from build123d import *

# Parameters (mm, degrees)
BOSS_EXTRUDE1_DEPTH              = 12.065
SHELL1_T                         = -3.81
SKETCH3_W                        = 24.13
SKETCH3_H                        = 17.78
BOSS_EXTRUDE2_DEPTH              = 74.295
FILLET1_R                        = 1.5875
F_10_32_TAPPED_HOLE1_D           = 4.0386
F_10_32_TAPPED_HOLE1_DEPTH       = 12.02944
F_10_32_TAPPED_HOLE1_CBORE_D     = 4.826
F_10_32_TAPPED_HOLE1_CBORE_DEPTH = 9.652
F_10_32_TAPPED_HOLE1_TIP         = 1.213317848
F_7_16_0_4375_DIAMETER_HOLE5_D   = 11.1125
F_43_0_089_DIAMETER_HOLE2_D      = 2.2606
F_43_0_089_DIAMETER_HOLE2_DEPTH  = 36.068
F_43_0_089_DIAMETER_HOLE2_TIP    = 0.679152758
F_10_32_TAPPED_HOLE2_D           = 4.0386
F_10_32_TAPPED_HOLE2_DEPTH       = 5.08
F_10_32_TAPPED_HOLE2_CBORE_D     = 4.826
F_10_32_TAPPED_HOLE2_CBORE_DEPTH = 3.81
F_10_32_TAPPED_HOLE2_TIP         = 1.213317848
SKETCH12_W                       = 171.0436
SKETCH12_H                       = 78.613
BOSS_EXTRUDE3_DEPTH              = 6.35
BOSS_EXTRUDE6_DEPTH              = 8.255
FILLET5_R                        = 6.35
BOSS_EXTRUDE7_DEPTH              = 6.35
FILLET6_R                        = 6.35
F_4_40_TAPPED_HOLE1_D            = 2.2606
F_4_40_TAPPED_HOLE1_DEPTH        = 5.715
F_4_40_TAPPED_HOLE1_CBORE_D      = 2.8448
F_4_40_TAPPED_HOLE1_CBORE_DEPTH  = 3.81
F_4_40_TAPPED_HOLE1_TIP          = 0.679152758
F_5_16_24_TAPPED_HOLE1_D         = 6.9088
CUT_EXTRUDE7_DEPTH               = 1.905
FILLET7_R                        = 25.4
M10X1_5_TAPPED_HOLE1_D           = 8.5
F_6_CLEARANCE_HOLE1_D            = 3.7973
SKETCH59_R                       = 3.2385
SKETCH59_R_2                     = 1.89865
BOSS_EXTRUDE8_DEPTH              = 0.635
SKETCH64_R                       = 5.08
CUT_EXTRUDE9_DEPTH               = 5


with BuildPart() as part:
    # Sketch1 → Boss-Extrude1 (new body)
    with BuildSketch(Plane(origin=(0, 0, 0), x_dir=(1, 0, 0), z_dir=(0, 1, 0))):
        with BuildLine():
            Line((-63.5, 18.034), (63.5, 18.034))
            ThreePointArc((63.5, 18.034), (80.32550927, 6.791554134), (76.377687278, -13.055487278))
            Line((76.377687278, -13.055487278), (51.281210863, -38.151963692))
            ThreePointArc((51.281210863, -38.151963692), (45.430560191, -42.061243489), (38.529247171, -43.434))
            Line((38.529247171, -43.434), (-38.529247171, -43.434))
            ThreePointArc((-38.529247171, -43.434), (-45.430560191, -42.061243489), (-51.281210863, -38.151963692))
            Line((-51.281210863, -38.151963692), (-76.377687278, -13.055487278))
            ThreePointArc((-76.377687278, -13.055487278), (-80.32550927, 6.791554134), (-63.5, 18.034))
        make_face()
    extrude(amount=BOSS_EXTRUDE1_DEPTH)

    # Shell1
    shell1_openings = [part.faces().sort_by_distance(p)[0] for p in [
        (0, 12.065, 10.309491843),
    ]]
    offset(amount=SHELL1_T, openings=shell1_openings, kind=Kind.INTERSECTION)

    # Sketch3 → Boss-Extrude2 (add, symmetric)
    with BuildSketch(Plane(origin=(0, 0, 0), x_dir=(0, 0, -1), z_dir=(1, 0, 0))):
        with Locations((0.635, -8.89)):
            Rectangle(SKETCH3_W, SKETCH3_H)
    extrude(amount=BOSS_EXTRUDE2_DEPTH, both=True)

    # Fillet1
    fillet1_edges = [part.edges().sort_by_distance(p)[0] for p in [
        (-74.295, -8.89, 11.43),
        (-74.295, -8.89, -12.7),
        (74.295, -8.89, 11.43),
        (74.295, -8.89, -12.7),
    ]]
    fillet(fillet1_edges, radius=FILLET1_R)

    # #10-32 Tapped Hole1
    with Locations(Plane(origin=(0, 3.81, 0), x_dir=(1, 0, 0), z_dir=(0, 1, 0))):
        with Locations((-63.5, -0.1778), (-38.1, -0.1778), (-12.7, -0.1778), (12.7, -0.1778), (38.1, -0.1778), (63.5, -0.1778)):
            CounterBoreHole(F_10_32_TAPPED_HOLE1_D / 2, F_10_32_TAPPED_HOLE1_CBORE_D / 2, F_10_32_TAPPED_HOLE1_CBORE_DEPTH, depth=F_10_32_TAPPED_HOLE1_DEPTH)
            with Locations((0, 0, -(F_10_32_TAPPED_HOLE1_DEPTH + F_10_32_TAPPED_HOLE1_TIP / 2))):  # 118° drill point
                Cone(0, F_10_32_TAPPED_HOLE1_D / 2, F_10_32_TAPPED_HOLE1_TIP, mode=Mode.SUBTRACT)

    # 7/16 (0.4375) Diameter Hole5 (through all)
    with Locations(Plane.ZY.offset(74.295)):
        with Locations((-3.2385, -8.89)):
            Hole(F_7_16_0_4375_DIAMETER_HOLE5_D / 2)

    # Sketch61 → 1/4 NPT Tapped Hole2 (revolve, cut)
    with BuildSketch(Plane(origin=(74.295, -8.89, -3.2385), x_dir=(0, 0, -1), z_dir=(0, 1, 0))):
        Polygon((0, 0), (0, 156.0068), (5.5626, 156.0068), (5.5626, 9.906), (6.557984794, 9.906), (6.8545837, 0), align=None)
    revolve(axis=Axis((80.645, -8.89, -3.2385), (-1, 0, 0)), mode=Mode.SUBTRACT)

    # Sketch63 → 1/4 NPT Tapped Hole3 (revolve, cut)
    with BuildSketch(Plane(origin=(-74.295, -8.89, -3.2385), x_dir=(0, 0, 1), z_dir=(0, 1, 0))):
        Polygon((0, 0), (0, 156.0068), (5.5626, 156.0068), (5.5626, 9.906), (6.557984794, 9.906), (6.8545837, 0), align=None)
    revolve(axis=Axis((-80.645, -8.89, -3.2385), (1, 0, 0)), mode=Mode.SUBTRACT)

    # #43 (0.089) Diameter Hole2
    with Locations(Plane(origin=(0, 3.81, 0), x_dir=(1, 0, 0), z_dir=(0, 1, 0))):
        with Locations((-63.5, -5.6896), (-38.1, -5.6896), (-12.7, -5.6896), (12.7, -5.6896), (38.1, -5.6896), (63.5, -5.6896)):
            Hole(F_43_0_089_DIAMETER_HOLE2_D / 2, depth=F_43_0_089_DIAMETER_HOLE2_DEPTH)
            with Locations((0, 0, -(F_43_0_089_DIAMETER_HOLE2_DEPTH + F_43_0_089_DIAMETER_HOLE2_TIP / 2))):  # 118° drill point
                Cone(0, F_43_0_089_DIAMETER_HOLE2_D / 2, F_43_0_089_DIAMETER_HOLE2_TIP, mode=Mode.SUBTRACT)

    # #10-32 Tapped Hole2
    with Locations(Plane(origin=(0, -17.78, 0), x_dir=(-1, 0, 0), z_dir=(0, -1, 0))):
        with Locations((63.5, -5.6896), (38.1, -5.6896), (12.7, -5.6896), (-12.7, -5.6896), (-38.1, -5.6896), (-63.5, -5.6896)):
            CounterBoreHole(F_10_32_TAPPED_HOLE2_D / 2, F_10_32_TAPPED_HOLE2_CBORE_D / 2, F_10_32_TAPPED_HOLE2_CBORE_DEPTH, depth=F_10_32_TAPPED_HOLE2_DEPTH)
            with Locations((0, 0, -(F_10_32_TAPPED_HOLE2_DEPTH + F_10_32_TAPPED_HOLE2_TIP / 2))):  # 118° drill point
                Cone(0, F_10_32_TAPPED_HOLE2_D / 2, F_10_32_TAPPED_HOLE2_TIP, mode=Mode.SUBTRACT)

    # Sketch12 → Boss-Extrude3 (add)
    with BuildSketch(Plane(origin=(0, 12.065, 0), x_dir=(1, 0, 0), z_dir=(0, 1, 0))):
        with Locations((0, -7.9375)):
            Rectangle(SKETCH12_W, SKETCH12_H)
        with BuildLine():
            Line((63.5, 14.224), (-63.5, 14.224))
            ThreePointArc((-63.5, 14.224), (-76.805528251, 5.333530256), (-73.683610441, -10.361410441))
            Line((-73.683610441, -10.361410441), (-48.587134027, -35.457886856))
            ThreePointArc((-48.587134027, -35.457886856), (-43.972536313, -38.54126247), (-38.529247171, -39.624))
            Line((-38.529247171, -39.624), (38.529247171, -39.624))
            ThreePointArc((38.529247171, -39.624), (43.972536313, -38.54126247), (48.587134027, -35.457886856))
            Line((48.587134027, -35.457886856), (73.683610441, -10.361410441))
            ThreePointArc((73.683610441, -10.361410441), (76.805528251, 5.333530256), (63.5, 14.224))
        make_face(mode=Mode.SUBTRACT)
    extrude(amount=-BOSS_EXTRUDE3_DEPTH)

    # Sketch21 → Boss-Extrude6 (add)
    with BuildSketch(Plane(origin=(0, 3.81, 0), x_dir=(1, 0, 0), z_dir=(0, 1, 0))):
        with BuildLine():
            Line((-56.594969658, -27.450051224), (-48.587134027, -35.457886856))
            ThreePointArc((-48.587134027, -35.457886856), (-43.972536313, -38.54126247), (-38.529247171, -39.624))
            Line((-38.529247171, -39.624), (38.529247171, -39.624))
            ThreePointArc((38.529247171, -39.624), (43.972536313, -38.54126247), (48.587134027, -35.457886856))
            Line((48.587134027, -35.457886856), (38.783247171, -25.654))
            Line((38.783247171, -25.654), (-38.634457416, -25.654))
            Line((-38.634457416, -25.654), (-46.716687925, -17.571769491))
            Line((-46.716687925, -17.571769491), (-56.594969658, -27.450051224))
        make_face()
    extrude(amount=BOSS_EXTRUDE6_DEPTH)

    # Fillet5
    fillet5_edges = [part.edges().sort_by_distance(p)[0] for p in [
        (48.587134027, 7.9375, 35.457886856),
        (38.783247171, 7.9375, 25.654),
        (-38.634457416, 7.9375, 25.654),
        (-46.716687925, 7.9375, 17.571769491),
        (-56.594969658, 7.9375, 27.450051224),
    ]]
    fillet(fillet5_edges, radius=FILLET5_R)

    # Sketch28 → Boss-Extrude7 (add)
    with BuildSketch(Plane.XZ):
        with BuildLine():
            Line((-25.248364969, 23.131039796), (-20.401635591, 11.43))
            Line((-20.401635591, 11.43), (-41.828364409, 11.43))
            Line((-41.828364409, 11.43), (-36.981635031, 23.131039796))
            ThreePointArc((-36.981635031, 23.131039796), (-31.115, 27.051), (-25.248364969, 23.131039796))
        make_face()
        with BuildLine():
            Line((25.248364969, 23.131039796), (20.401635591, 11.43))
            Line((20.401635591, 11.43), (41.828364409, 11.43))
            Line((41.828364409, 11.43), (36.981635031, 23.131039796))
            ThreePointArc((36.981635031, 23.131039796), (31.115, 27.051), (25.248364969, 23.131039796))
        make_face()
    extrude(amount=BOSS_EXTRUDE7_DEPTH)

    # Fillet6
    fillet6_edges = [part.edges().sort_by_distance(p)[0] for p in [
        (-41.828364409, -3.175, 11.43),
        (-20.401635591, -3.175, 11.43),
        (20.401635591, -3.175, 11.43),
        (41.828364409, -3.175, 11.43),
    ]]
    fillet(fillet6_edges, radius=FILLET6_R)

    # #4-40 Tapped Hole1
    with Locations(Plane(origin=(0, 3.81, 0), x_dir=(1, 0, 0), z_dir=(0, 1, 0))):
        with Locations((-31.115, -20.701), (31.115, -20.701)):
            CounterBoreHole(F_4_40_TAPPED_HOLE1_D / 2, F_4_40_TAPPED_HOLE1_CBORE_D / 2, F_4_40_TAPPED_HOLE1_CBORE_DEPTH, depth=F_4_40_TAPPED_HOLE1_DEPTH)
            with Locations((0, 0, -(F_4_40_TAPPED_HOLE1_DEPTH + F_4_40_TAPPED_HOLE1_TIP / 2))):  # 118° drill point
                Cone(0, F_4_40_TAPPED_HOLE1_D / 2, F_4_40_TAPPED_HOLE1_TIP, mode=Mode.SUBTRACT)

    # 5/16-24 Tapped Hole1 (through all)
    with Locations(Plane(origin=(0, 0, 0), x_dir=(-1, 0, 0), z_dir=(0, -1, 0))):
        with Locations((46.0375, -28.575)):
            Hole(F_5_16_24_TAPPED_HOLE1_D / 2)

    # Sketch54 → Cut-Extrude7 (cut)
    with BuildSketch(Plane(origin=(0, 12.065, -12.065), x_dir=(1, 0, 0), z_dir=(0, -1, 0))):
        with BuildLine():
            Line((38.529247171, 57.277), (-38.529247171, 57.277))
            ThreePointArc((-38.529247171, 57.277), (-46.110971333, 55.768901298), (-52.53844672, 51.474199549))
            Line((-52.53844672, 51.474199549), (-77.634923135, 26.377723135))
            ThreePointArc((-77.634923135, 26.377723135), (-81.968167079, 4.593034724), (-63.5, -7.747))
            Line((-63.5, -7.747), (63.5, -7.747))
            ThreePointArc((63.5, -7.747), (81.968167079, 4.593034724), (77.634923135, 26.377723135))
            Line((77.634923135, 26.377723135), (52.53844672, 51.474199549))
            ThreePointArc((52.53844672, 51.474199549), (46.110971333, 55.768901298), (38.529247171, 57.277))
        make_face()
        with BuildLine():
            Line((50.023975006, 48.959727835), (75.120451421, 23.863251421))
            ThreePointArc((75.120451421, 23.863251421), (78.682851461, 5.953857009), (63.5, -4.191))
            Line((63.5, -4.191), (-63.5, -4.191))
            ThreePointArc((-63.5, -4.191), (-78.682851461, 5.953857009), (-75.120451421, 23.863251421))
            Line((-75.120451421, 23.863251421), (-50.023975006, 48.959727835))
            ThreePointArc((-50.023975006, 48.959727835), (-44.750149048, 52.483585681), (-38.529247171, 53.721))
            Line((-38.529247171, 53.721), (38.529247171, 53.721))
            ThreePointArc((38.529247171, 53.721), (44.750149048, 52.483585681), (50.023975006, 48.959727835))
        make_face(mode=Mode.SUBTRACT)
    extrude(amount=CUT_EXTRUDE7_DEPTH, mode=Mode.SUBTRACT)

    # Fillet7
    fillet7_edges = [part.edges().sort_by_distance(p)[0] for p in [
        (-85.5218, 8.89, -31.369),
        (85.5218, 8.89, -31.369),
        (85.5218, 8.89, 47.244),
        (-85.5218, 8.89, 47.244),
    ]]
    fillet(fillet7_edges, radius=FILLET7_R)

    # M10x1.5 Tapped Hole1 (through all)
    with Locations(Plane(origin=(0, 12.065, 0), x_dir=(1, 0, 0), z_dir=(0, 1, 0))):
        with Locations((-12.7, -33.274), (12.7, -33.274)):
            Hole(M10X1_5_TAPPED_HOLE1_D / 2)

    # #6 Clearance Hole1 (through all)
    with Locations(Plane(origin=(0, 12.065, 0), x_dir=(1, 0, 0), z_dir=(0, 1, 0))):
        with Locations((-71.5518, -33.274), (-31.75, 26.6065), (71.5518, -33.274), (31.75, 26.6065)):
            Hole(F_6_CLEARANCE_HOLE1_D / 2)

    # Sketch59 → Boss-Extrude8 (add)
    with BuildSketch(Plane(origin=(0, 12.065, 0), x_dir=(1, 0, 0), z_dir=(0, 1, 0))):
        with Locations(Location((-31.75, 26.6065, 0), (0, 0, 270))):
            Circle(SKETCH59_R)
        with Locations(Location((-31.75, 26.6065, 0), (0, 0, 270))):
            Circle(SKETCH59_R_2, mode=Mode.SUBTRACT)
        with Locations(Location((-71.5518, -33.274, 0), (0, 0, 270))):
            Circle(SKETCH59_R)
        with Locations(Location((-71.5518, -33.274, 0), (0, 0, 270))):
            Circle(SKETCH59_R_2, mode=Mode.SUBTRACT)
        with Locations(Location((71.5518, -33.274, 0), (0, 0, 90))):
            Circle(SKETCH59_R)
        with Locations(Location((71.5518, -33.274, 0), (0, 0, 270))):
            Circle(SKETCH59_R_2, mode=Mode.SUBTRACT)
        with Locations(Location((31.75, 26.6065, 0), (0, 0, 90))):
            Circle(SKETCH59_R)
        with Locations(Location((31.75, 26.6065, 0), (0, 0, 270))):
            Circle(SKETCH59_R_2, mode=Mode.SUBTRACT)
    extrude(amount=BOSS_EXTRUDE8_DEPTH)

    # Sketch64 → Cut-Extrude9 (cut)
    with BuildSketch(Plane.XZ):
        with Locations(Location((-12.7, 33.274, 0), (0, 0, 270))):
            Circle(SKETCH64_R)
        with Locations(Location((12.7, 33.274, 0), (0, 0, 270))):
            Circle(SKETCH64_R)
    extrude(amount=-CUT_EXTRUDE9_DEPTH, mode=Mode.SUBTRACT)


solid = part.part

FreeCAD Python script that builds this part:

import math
import FreeCAD as App
import Part
import Sketcher
Q = App.Units.Quantity


def edges_at(feature, points):
    """Names of the edges that pass closest to the given points."""
    edges = feature.Shape.Edges
    near = lambda p: min(range(len(edges)), key=lambda i: edges[i].distToShape(Part.Vertex(*p))[0])
    return sorted({f"Edge{near(p) + 1}" for p in points})


def faces_at(feature, points):
    """Names of the faces that lie closest to the given points."""
    faces = feature.Shape.Faces
    near = lambda p: min(range(len(faces)), key=lambda i: faces[i].distToShape(Part.Vertex(*p))[0])
    return sorted({f"Face{near(p) + 1}" for p in points})

doc = App.newDocument("Part")
body = doc.addObject("PartDesign::Body", "Body")

# Sketch on XZ plane
sketch1 = body.newObject("Sketcher::SketchObject", "Sketch")
sketch1.AttachmentSupport = (doc.getObject("XZ_Plane"), [""])
sketch1.MapMode = "FlatFace"
sketch1.addGeometry(Part.LineSegment(App.Vector(64, -18, 0), App.Vector(-64, -18, 0)), False)
sketch1.addGeometry(Part.ArcOfCircle(Part.Circle(App.Vector(-64, 0, 0), App.Vector(0, 0, 1), 18), math.radians(135), math.radians(270)), False)
sketch1.addGeometry(Part.LineSegment(App.Vector(-76, 13, 0), App.Vector(-51, 38, 0)), False)
sketch1.addGeometry(Part.ArcOfCircle(Part.Circle(App.Vector(-39, 25, 0), App.Vector(0, 0, 1), 18), math.radians(90), math.radians(135)), False)
sketch1.addGeometry(Part.LineSegment(App.Vector(-39, 43, 0), App.Vector(39, 43, 0)), False)
sketch1.addGeometry(Part.ArcOfCircle(Part.Circle(App.Vector(39, 25, 0), App.Vector(0, 0, 1), 18), math.radians(45), math.radians(90)), False)
sketch1.addGeometry(Part.LineSegment(App.Vector(51, 38, 0), App.Vector(76, 13, 0)), False)
sketch1.addGeometry(Part.ArcOfCircle(Part.Circle(App.Vector(64, 0, 0), App.Vector(0, 0, 1), 18), math.radians(-90), math.radians(45)), False)
sketch1.addConstraint(Sketcher.Constraint("Tangent", 0, 2, 1, 2))
sketch1.addConstraint(Sketcher.Constraint("Tangent", 1, 1, 2, 1))
sketch1.addConstraint(Sketcher.Constraint("Tangent", 2, 2, 3, 2))
sketch1.addConstraint(Sketcher.Constraint("Tangent", 3, 1, 4, 1))
sketch1.addConstraint(Sketcher.Constraint("Tangent", 4, 2, 5, 2))
sketch1.addConstraint(Sketcher.Constraint("Tangent", 5, 1, 6, 1))
sketch1.addConstraint(Sketcher.Constraint("Tangent", 6, 2, 7, 2))
sketch1.addConstraint(Sketcher.Constraint("Tangent", 7, 1, 0, 1))
sketch1.addConstraint(Sketcher.Constraint("Horizontal", 0))
sketch1.addConstraint(Sketcher.Constraint("Horizontal", 4))
sketch1.addConstraint(Sketcher.Constraint("Equal", 3, 5))
sketch1.addConstraint(Sketcher.Constraint("Equal", 1, 7))
sketch1.addConstraint(Sketcher.Constraint("Symmetric", 2, 2, 5, 1, -2))
sketch1.addConstraint(Sketcher.Constraint("Perpendicular", 2, 6))
sketch1.addConstraint(Sketcher.Constraint("DistanceX", 0, 2, 0, 1, Q("5 in")))
sketch1.addConstraint(Sketcher.Constraint("Radius", 3, Q("0.71 in")))
sketch1.addConstraint(Sketcher.Constraint("DistanceY", -1, 1, 3, 3, Q("1 in")))
sketch1.addConstraint(Sketcher.Constraint("Radius", 1, Q("0.717 in")))
sketch1.addConstraint(Sketcher.Constraint("DistanceY", 0, 2, -1, 1, Q("0.71 in")))
pad1 = body.newObject("PartDesign::Pad", "Pad")
pad1.Profile = sketch1
pad1.Length = Q("0.475 in")
pad1.Reversed = True
doc.recompute()

thickness = body.newObject("PartDesign::Thickness", "Thickness")
thickness.Base = (pad1, faces_at(pad1, [(0, 12.065, 12.7)]))
thickness.Value = Q("0.15 in")
thickness.Reversed = True
thickness.Join = "Intersection"

# Sketch on YZ plane
sketch2 = body.newObject("Sketcher::SketchObject", "Sketch001")
sketch2.AttachmentSupport = (doc.getObject("YZ_Plane"), [""])
sketch2.MapMode = "FlatFace"
sketch2.addGeometry(Part.LineSegment(App.Vector(0, 11, 0), App.Vector(-18, 11, 0)), False)
sketch2.addGeometry(Part.LineSegment(App.Vector(-18, 11, 0), App.Vector(-18, -13, 0)), False)
sketch2.addGeometry(Part.LineSegment(App.Vector(-18, -13, 0), App.Vector(0, -13, 0)), False)
sketch2.addGeometry(Part.LineSegment(App.Vector(0, -13, 0), App.Vector(0, 11, 0)), False)
sketch2.addConstraint(Sketcher.Constraint("Coincident", 0, 2, 1, 1))
sketch2.addConstraint(Sketcher.Constraint("Coincident", 1, 2, 2, 1))
sketch2.addConstraint(Sketcher.Constraint("Coincident", 2, 2, 3, 1))
sketch2.addConstraint(Sketcher.Constraint("Coincident", 3, 2, 0, 1))
sketch2.addConstraint(Sketcher.Constraint("Horizontal", 0))
sketch2.addConstraint(Sketcher.Constraint("Vertical", 1))
sketch2.addConstraint(Sketcher.Constraint("Horizontal", 2))
sketch2.addConstraint(Sketcher.Constraint("Vertical", 3))
sketch2.addConstraint(Sketcher.Constraint("PointOnObject", 2, 2, -2))
sketch2.addConstraint(Sketcher.Constraint("DistanceX", 0, 2, 0, 1, Q("0.7 in")))
sketch2.addConstraint(Sketcher.Constraint("DistanceY", 1, 2, 1, 1, Q("0.95 in")))
sketch2.addConstraint(Sketcher.Constraint("DistanceY", 1, 2, -1, 1, Q("0.5 in")))
pad2 = body.newObject("PartDesign::Pad", "Pad001")
pad2.Profile = sketch2
pad2.Length = Q("5.85 in")
pad2.Midplane = True
doc.recompute()

fillet = body.newObject("PartDesign::Fillet", "Fillet")
fillet.Base = (pad2, edges_at(pad2, [
    (-74.295, -8.89, 11.43),
    (-74.295, -8.89, -12.7),
    (74.295, -8.89, 11.43),
    (74.295, -8.89, -12.7),
]))
fillet.Radius = Q("0.0625 in")

# Sketch on XZ plane
sketch3 = body.newObject("Sketcher::SketchObject", "Sketch002")
sketch3.AttachmentSupport = (doc.getObject("XZ_Plane"), [""])
sketch3.MapMode = "FlatFace"
sketch3.AttachmentOffset = App.Placement(App.Vector(0, 0, -0.15 * 25.4), App.Rotation())
sketch3.addGeometry(Part.Circle(App.Vector(-63.5, 0.2, 0), App.Vector(0, 0, 1), 2), False)
sketch3.addGeometry(Part.Circle(App.Vector(-38.1, 0.2, 0), App.Vector(0, 0, 1), 2), False)
sketch3.addGeometry(Part.Circle(App.Vector(-12.7, 0.2, 0), App.Vector(0, 0, 1), 2), False)
sketch3.addGeometry(Part.Circle(App.Vector(12.7, 0.2, 0), App.Vector(0, 0, 1), 2), False)
sketch3.addGeometry(Part.Circle(App.Vector(38.1, 0.2, 0), App.Vector(0, 0, 1), 2), False)
sketch3.addGeometry(Part.Circle(App.Vector(63.5, 0.2, 0), App.Vector(0, 0, 1), 2), False)
sketch3.addConstraint(Sketcher.Constraint("Equal", 0, 1))
sketch3.addConstraint(Sketcher.Constraint("Equal", 1, 2))
sketch3.addConstraint(Sketcher.Constraint("Equal", 2, 3))
sketch3.addConstraint(Sketcher.Constraint("Equal", 3, 4))
sketch3.addConstraint(Sketcher.Constraint("Equal", 4, 5))
sketch3.addConstraint(Sketcher.Constraint("Symmetric", 2, 3, 3, 3, -2))
sketch3.addConstraint(Sketcher.Constraint("Symmetric", 1, 3, 4, 3, -2))
sketch3.addConstraint(Sketcher.Constraint("Symmetric", 0, 3, 5, 3, -2))
sketch3.addConstraint(Sketcher.Constraint("Horizontal", 0, 3, 1, 3))
sketch3.addConstraint(Sketcher.Constraint("Horizontal", 1, 3, 2, 3))
sketch3.addConstraint(Sketcher.Constraint("Diameter", 0, Q("0.159 in")))
sketch3.addConstraint(Sketcher.Constraint("DistanceX", 0, 3, 1, 3, Q("1 in")))
sketch3.addConstraint(Sketcher.Constraint("DistanceX", 1, 3, 2, 3, Q("1 in")))
sketch3.addConstraint(Sketcher.Constraint("DistanceX", 2, 3, 3, 3, Q("1 in")))
sketch3.addConstraint(Sketcher.Constraint("DistanceY", -1, 1, 0, 3, Q("0.007 in")))
doc.recompute()
hole = body.newObject("PartDesign::Hole", "Hole")
hole.Profile = sketch3
hole.ThreadType = "None"
hole.Diameter = Q("0.159 in")
hole.DepthType = "Dimension"
hole.Depth = Q("0.4736 in")
hole.DrillPoint = "Angled"
hole.DrillPointAngle = 118
hole.HoleCutType = "Counterbore"
hole.HoleCutDiameter = Q("0.19 in")
hole.HoleCutDepth = Q("0.38 in")
hole.Reversed = True

# Sketch on YZ plane
sketch4 = body.newObject("Sketcher::SketchObject", "Sketch003")
sketch4.AttachmentSupport = (doc.getObject("YZ_Plane"), [""])
sketch4.MapMode = "FlatFace"
sketch4.AttachmentOffset = App.Placement(App.Vector(0, 0, -2.925 * 25.4), App.Rotation())
sketch4.addGeometry(Part.Circle(App.Vector(-9, -3, 0), App.Vector(0, 0, 1), 6), False)
sketch4.addConstraint(Sketcher.Constraint("Diameter", 0, Q("0.4375 in")))
sketch4.addConstraint(Sketcher.Constraint("DistanceX", 0, 3, -1, 1, Q("0.35 in")))
sketch4.addConstraint(Sketcher.Constraint("DistanceY", 0, 3, -1, 1, Q("0.1275 in")))
doc.recompute()
hole2 = body.newObject("PartDesign::Hole", "Hole001")
hole2.Profile = sketch4
hole2.ThreadType = "None"
hole2.Diameter = Q("0.4375 in")
hole2.DepthType = "ThroughAll"
hole2.Reversed = True

# Sketch on XZ plane
sketch5 = body.newObject("Sketcher::SketchObject", "Sketch004")
sketch5.AttachmentSupport = (doc.getObject("XZ_Plane"), [""])
sketch5.MapMode = "FlatFace"
sketch5.AttachmentOffset = App.Placement(App.Vector(0, 0, 0.35 * 25.4), App.Rotation())
sketch5.addGeometry(Part.LineSegment(App.Vector(-81.7, -3.2, 0), App.Vector(74.3, -3.2, 0)), False)
sketch5.addGeometry(Part.LineSegment(App.Vector(74.3, -3.2, 0), App.Vector(74.3, -10.1, 0)), False)
sketch5.addGeometry(Part.LineSegment(App.Vector(74.3, -10.1, 0), App.Vector(64.4, -9.8, 0)), False)
sketch5.addGeometry(Part.LineSegment(App.Vector(64.4, -9.8, 0), App.Vector(64.4, -8.8, 0)), False)
sketch5.addGeometry(Part.LineSegment(App.Vector(64.4, -8.8, 0), App.Vector(-81.7, -8.8, 0)), False)
sketch5.addGeometry(Part.LineSegment(App.Vector(-81.7, -8.8, 0), App.Vector(-81.7, -3.2, 0)), False)
sketch5.addGeometry(Part.LineSegment(App.Vector(74.3, -3.2, 0), App.Vector(-81.7, -3.2, 0)), True)  # axis
sketch5.addConstraint(Sketcher.Constraint("Coincident", 0, 2, 1, 1))
sketch5.addConstraint(Sketcher.Constraint("Coincident", 1, 2, 2, 1))
sketch5.addConstraint(Sketcher.Constraint("Coincident", 2, 2, 3, 1))
sketch5.addConstraint(Sketcher.Constraint("Coincident", 3, 2, 4, 1))
sketch5.addConstraint(Sketcher.Constraint("Coincident", 4, 2, 5, 1))
sketch5.addConstraint(Sketcher.Constraint("Coincident", 5, 2, 0, 1))
sketch5.addConstraint(Sketcher.Constraint("Horizontal", 0))
sketch5.addConstraint(Sketcher.Constraint("Vertical", 1))
sketch5.addConstraint(Sketcher.Constraint("Vertical", 3))
sketch5.addConstraint(Sketcher.Constraint("Horizontal", 4))
sketch5.addConstraint(Sketcher.Constraint("Vertical", 5))
sketch5.addConstraint(Sketcher.Constraint("Horizontal", 6))
sketch5.addConstraint(Sketcher.Constraint("Coincident", 6, 1, 0, 2))
sketch5.addConstraint(Sketcher.Constraint("Vertical", 4, 2, 6, 2))
sketch5.addConstraint(Sketcher.Constraint("DistanceX", 0, 1, 0, 2, Q("6.142 in")))
sketch5.addConstraint(Sketcher.Constraint("DistanceX", 4, 2, 4, 1, Q("5.752 in")))
sketch5.addConstraint(Sketcher.Constraint("DistanceY", 5, 1, 5, 2, Q("0.219 in")))
sketch5.addConstraint(Sketcher.Constraint("DistanceX", -1, 1, 0, 2, Q("2.925 in")))
sketch5.addConstraint(Sketcher.Constraint("DistanceY", 0, 2, -1, 1, Q("0.1275 in")))
sketch5.addConstraint(Sketcher.Constraint("DistanceY", 1, 2, 2, 2, Q("0.296599 mm")))
sketch5.addConstraint(Sketcher.Constraint("DistanceY", 1, 2, 1, 1, Q("6.854584 mm")))
groove = body.newObject("PartDesign::Groove", "Groove")
groove.Profile = sketch5
groove.ReferenceAxis = (sketch5, ["Axis0"])
groove.Angle = 360

# Sketch on XZ plane
sketch6 = body.newObject("Sketcher::SketchObject", "Sketch005")
sketch6.AttachmentSupport = (doc.getObject("XZ_Plane"), [""])
sketch6.MapMode = "FlatFace"
sketch6.AttachmentOffset = App.Placement(App.Vector(0, 0, 0.35 * 25.4), App.Rotation())
sketch6.addGeometry(Part.LineSegment(App.Vector(81.7, -3.2, 0), App.Vector(-74.3, -3.2, 0)), False)
sketch6.addGeometry(Part.LineSegment(App.Vector(-74.3, -3.2, 0), App.Vector(-74.3, 3.6, 0)), False)
sketch6.addGeometry(Part.LineSegment(App.Vector(-74.3, 3.6, 0), App.Vector(-64.4, 3.3, 0)), False)
sketch6.addGeometry(Part.LineSegment(App.Vector(-64.4, 3.3, 0), App.Vector(-64.4, 2.3, 0)), False)
sketch6.addGeometry(Part.LineSegment(App.Vector(-64.4, 2.3, 0), App.Vector(81.7, 2.3, 0)), False)
sketch6.addGeometry(Part.LineSegment(App.Vector(81.7, 2.3, 0), App.Vector(81.7, -3.2, 0)), False)
sketch6.addGeometry(Part.LineSegment(App.Vector(-74.3, -3.2, 0), App.Vector(81.7, -3.2, 0)), True)  # axis
sketch6.addConstraint(Sketcher.Constraint("Coincident", 0, 2, 1, 1))
sketch6.addConstraint(Sketcher.Constraint("Coincident", 1, 2, 2, 1))
sketch6.addConstraint(Sketcher.Constraint("Coincident", 2, 2, 3, 1))
sketch6.addConstraint(Sketcher.Constraint("Coincident", 3, 2, 4, 1))
sketch6.addConstraint(Sketcher.Constraint("Coincident", 4, 2, 5, 1))
sketch6.addConstraint(Sketcher.Constraint("Coincident", 5, 2, 0, 1))
sketch6.addConstraint(Sketcher.Constraint("Horizontal", 0))
sketch6.addConstraint(Sketcher.Constraint("Vertical", 1))
sketch6.addConstraint(Sketcher.Constraint("Vertical", 3))
sketch6.addConstraint(Sketcher.Constraint("Horizontal", 4))
sketch6.addConstraint(Sketcher.Constraint("Vertical", 5))
sketch6.addConstraint(Sketcher.Constraint("Horizontal", 6))
sketch6.addConstraint(Sketcher.Constraint("Coincident", 6, 1, 0, 2))
sketch6.addConstraint(Sketcher.Constraint("Vertical", 4, 2, 6, 2))
sketch6.addConstraint(Sketcher.Constraint("DistanceX", 0, 2, 0, 1, Q("6.142 in")))
sketch6.addConstraint(Sketcher.Constraint("DistanceX", 4, 1, 4, 2, Q("5.752 in")))
sketch6.addConstraint(Sketcher.Constraint("DistanceY", 5, 2, 5, 1, Q("0.219 in")))
sketch6.addConstraint(Sketcher.Constraint("DistanceX", 0, 2, -1, 1, Q("2.925 in")))
sketch6.addConstraint(Sketcher.Constraint("DistanceY", 0, 2, -1, 1, Q("0.1275 in")))
sketch6.addConstraint(Sketcher.Constraint("DistanceY", 2, 2, 1, 2, Q("0.296599 mm")))
sketch6.addConstraint(Sketcher.Constraint("DistanceY", 1, 1, 1, 2, Q("6.854584 mm")))
groove2 = body.newObject("PartDesign::Groove", "Groove001")
groove2.Profile = sketch6
groove2.ReferenceAxis = (sketch6, ["Axis0"])
groove2.Angle = 360

# Sketch on XZ plane
sketch7 = body.newObject("Sketcher::SketchObject", "Sketch006")
sketch7.AttachmentSupport = (doc.getObject("XZ_Plane"), [""])
sketch7.MapMode = "FlatFace"
sketch7.AttachmentOffset = App.Placement(App.Vector(0, 0, -0.15 * 25.4), App.Rotation())
sketch7.addGeometry(Part.Circle(App.Vector(-63.5, 5.7, 0), App.Vector(0, 0, 1), 1.1), False)
sketch7.addGeometry(Part.Circle(App.Vector(-38.1, 5.7, 0), App.Vector(0, 0, 1), 1.1), False)
sketch7.addGeometry(Part.Circle(App.Vector(-12.7, 5.7, 0), App.Vector(0, 0, 1), 1.1), False)
sketch7.addGeometry(Part.Circle(App.Vector(12.7, 5.7, 0), App.Vector(0, 0, 1), 1.1), False)
sketch7.addGeometry(Part.Circle(App.Vector(38.1, 5.7, 0), App.Vector(0, 0, 1), 1.1), False)
sketch7.addGeometry(Part.Circle(App.Vector(63.5, 5.7, 0), App.Vector(0, 0, 1), 1.1), False)
sketch7.addConstraint(Sketcher.Constraint("Equal", 0, 1))
sketch7.addConstraint(Sketcher.Constraint("Equal", 1, 2))
sketch7.addConstraint(Sketcher.Constraint("Equal", 2, 3))
sketch7.addConstraint(Sketcher.Constraint("Equal", 3, 4))
sketch7.addConstraint(Sketcher.Constraint("Equal", 4, 5))
sketch7.addConstraint(Sketcher.Constraint("Symmetric", 2, 3, 3, 3, -2))
sketch7.addConstraint(Sketcher.Constraint("Symmetric", 1, 3, 4, 3, -2))
sketch7.addConstraint(Sketcher.Constraint("Symmetric", 0, 3, 5, 3, -2))
sketch7.addConstraint(Sketcher.Constraint("Horizontal", 0, 3, 1, 3))
sketch7.addConstraint(Sketcher.Constraint("Horizontal", 1, 3, 2, 3))
sketch7.addConstraint(Sketcher.Constraint("Diameter", 0, Q("0.089 in")))
sketch7.addConstraint(Sketcher.Constraint("DistanceX", 0, 3, 1, 3, Q("1 in")))
sketch7.addConstraint(Sketcher.Constraint("DistanceX", 1, 3, 2, 3, Q("1 in")))
sketch7.addConstraint(Sketcher.Constraint("DistanceX", 2, 3, 3, 3, Q("1 in")))
sketch7.addConstraint(Sketcher.Constraint("DistanceY", -1, 1, 0, 3, Q("0.224 in")))
doc.recompute()
hole3 = body.newObject("PartDesign::Hole", "Hole002")
hole3.Profile = sketch7
hole3.ThreadType = "None"
hole3.Diameter = Q("0.089 in")
hole3.DepthType = "Dimension"
hole3.Depth = Q("1.42 in")
hole3.DrillPoint = "Angled"
hole3.DrillPointAngle = 118
hole3.Reversed = True

# Sketch on XZ plane
sketch8 = body.newObject("Sketcher::SketchObject", "Sketch007")
sketch8.AttachmentSupport = (doc.getObject("XZ_Plane"), [""])
sketch8.MapMode = "FlatFace"
sketch8.AttachmentOffset = App.Placement(App.Vector(0, 0, 0.7 * 25.4), App.Rotation())
sketch8.addGeometry(Part.Circle(App.Vector(-63.5, 5.7, 0), App.Vector(0, 0, 1), 2), False)
sketch8.addGeometry(Part.Circle(App.Vector(-38.1, 5.7, 0), App.Vector(0, 0, 1), 2), False)
sketch8.addGeometry(Part.Circle(App.Vector(-12.7, 5.7, 0), App.Vector(0, 0, 1), 2), False)
sketch8.addGeometry(Part.Circle(App.Vector(12.7, 5.7, 0), App.Vector(0, 0, 1), 2), False)
sketch8.addGeometry(Part.Circle(App.Vector(38.1, 5.7, 0), App.Vector(0, 0, 1), 2), False)
sketch8.addGeometry(Part.Circle(App.Vector(63.5, 5.7, 0), App.Vector(0, 0, 1), 2), False)
sketch8.addConstraint(Sketcher.Constraint("Equal", 0, 1))
sketch8.addConstraint(Sketcher.Constraint("Equal", 1, 2))
sketch8.addConstraint(Sketcher.Constraint("Equal", 2, 3))
sketch8.addConstraint(Sketcher.Constraint("Equal", 3, 4))
sketch8.addConstraint(Sketcher.Constraint("Equal", 4, 5))
sketch8.addConstraint(Sketcher.Constraint("Symmetric", 2, 3, 3, 3, -2))
sketch8.addConstraint(Sketcher.Constraint("Symmetric", 1, 3, 4, 3, -2))
sketch8.addConstraint(Sketcher.Constraint("Symmetric", 0, 3, 5, 3, -2))
sketch8.addConstraint(Sketcher.Constraint("Horizontal", 0, 3, 1, 3))
sketch8.addConstraint(Sketcher.Constraint("Horizontal", 1, 3, 2, 3))
sketch8.addConstraint(Sketcher.Constraint("Diameter", 0, Q("0.159 in")))
sketch8.addConstraint(Sketcher.Constraint("DistanceX", 0, 3, 1, 3, Q("1 in")))
sketch8.addConstraint(Sketcher.Constraint("DistanceX", 1, 3, 2, 3, Q("1 in")))
sketch8.addConstraint(Sketcher.Constraint("DistanceX", 2, 3, 3, 3, Q("1 in")))
sketch8.addConstraint(Sketcher.Constraint("DistanceY", -1, 1, 0, 3, Q("0.224 in")))
doc.recompute()
hole4 = body.newObject("PartDesign::Hole", "Hole003")
hole4.Profile = sketch8
hole4.ThreadType = "None"
hole4.Diameter = Q("0.159 in")
hole4.DepthType = "Dimension"
hole4.Depth = Q("0.2 in")
hole4.DrillPoint = "Angled"
hole4.DrillPointAngle = 118
hole4.HoleCutType = "Counterbore"
hole4.HoleCutDiameter = Q("0.19 in")
hole4.HoleCutDepth = Q("0.15 in")

# Sketch on XZ plane
sketch9 = body.newObject("Sketcher::SketchObject", "Sketch008")
sketch9.AttachmentSupport = (doc.getObject("XZ_Plane"), [""])
sketch9.MapMode = "FlatFace"
sketch9.AttachmentOffset = App.Placement(App.Vector(0, 0, -0.475 * 25.4), App.Rotation())
sketch9.addGeometry(Part.LineSegment(App.Vector(-86, -31, 0), App.Vector(-86, 47, 0)), False)
sketch9.addGeometry(Part.LineSegment(App.Vector(-86, 47, 0), App.Vector(86, 47, 0)), False)
sketch9.addGeometry(Part.LineSegment(App.Vector(86, 47, 0), App.Vector(86, -31, 0)), False)
sketch9.addGeometry(Part.LineSegment(App.Vector(86, -31, 0), App.Vector(-86, -31, 0)), False)
sketch9.addGeometry(Part.LineSegment(App.Vector(-64, -14, 0), App.Vector(64, -14, 0)), False)
sketch9.addGeometry(Part.ArcOfCircle(Part.Circle(App.Vector(64, 0, 0), App.Vector(0, 0, 1), 14), math.radians(-90), math.radians(45)), False)
sketch9.addGeometry(Part.LineSegment(App.Vector(74, 10, 0), App.Vector(49, 35, 0)), False)
sketch9.addGeometry(Part.ArcOfCircle(Part.Circle(App.Vector(39, 25, 0), App.Vector(0, 0, 1), 14), math.radians(45), math.radians(90)), False)
sketch9.addGeometry(Part.LineSegment(App.Vector(39, 40, 0), App.Vector(-39, 40, 0)), False)
sketch9.addGeometry(Part.ArcOfCircle(Part.Circle(App.Vector(-39, 25, 0), App.Vector(0, 0, 1), 14), math.radians(90), math.radians(135)), False)
sketch9.addGeometry(Part.LineSegment(App.Vector(-49, 35, 0), App.Vector(-74, 10, 0)), False)
sketch9.addGeometry(Part.ArcOfCircle(Part.Circle(App.Vector(-64, 0, 0), App.Vector(0, 0, 1), 14), math.radians(135), math.radians(270)), False)
sketch9.addConstraint(Sketcher.Constraint("Coincident", 0, 2, 1, 1))
sketch9.addConstraint(Sketcher.Constraint("Coincident", 1, 2, 2, 1))
sketch9.addConstraint(Sketcher.Constraint("Coincident", 2, 2, 3, 1))
sketch9.addConstraint(Sketcher.Constraint("Coincident", 3, 2, 0, 1))
sketch9.addConstraint(Sketcher.Constraint("Tangent", 4, 2, 5, 1))
sketch9.addConstraint(Sketcher.Constraint("Tangent", 5, 2, 6, 1))
sketch9.addConstraint(Sketcher.Constraint("Tangent", 6, 2, 7, 1))
sketch9.addConstraint(Sketcher.Constraint("Tangent", 7, 2, 8, 1))
sketch9.addConstraint(Sketcher.Constraint("Tangent", 8, 2, 9, 1))
sketch9.addConstraint(Sketcher.Constraint("Tangent", 9, 2, 10, 1))
sketch9.addConstraint(Sketcher.Constraint("Tangent", 10, 2, 11, 1))
sketch9.addConstraint(Sketcher.Constraint("Tangent", 11, 2, 4, 1))
sketch9.addConstraint(Sketcher.Constraint("Vertical", 0))
sketch9.addConstraint(Sketcher.Constraint("Horizontal", 1))
sketch9.addConstraint(Sketcher.Constraint("Vertical", 2))
sketch9.addConstraint(Sketcher.Constraint("Horizontal", 3))
sketch9.addConstraint(Sketcher.Constraint("Horizontal", 4))
sketch9.addConstraint(Sketcher.Constraint("Horizontal", 8))
sketch9.addConstraint(Sketcher.Constraint("Equal", 7, 9))
sketch9.addConstraint(Sketcher.Constraint("Equal", 5, 11))
sketch9.addConstraint(Sketcher.Constraint("Symmetric", 6, 2, 9, 2, -2))
sketch9.addConstraint(Sketcher.Constraint("Perpendicular", 6, 10))
sketch9.addConstraint(Sketcher.Constraint("DistanceX", 4, 1, 4, 2, Q("5 in")))
sketch9.addConstraint(Sketcher.Constraint("Radius", 7, Q("0.56 in")))
sketch9.addConstraint(Sketcher.Constraint("DistanceY", -1, 1, 7, 3, Q("1 in")))
sketch9.addConstraint(Sketcher.Constraint("Radius", 5, Q("0.567 in")))
sketch9.addConstraint(Sketcher.Constraint("DistanceY", 7, 2, 1, 2, Q("0.3 in")))
sketch9.addConstraint(Sketcher.Constraint("DistanceX", 1, 1, 1, 2, Q("6.734 in")))
sketch9.addConstraint(Sketcher.Constraint("DistanceY", 0, 1, 0, 2, Q("3.095 in")))
sketch9.addConstraint(Sketcher.Constraint("DistanceY", 4, 2, -1, 1, Q("0.56 in")))
sketch9.addConstraint(Sketcher.Constraint("DistanceX", 0, 2, -1, 1, Q("3.367 in")))
pad3 = body.newObject("PartDesign::Pad", "Pad002")
pad3.Profile = sketch9
pad3.Length = Q("0.25 in")

# Sketch on XZ plane
sketch10 = body.newObject("Sketcher::SketchObject", "Sketch009")
sketch10.AttachmentSupport = (doc.getObject("XZ_Plane"), [""])
sketch10.MapMode = "FlatFace"
sketch10.AttachmentOffset = App.Placement(App.Vector(0, 0, -0.15 * 25.4), App.Rotation())
sketch10.addGeometry(Part.LineSegment(App.Vector(-57, 27, 0), App.Vector(-49, 35, 0)), False)
sketch10.addGeometry(Part.ArcOfCircle(Part.Circle(App.Vector(-39, 25, 0), App.Vector(0, 0, 1), 14), math.radians(90), math.radians(135)), False)
sketch10.addGeometry(Part.LineSegment(App.Vector(-39, 40, 0), App.Vector(39, 40, 0)), False)
sketch10.addGeometry(Part.ArcOfCircle(Part.Circle(App.Vector(39, 25, 0), App.Vector(0, 0, 1), 14), math.radians(45), math.radians(90)), False)
sketch10.addGeometry(Part.LineSegment(App.Vector(49, 35, 0), App.Vector(39, 26, 0)), False)
sketch10.addGeometry(Part.LineSegment(App.Vector(39, 26, 0), App.Vector(-39, 26, 0)), False)
sketch10.addGeometry(Part.LineSegment(App.Vector(-39, 26, 0), App.Vector(-47, 18, 0)), False)
sketch10.addGeometry(Part.LineSegment(App.Vector(-47, 18, 0), App.Vector(-57, 27, 0)), False)
sketch10.addConstraint(Sketcher.Constraint("Tangent", 0, 2, 1, 2))
sketch10.addConstraint(Sketcher.Constraint("Tangent", 1, 1, 2, 1))
sketch10.addConstraint(Sketcher.Constraint("Tangent", 2, 2, 3, 2))
sketch10.addConstraint(Sketcher.Constraint("Coincident", 3, 1, 4, 1))
sketch10.addConstraint(Sketcher.Constraint("Coincident", 4, 2, 5, 1))
sketch10.addConstraint(Sketcher.Constraint("Coincident", 5, 2, 6, 1))
sketch10.addConstraint(Sketcher.Constraint("Coincident", 6, 2, 7, 1))
sketch10.addConstraint(Sketcher.Constraint("Coincident", 7, 2, 0, 1))
sketch10.addConstraint(Sketcher.Constraint("Horizontal", 2))
sketch10.addConstraint(Sketcher.Constraint("Horizontal", 5))
sketch10.addConstraint(Sketcher.Constraint("Equal", 1, 3))
sketch10.addConstraint(Sketcher.Constraint("Symmetric", 0, 2, 3, 1, -2))
sketch10.addConstraint(Sketcher.Constraint("Parallel", 0, 4))
sketch10.addConstraint(Sketcher.Constraint("Parallel", 4, 6))
sketch10.addConstraint(Sketcher.Constraint("Perpendicular", 6, 7))
sketch10.addConstraint(Sketcher.Constraint("Radius", 1, Q("0.56 in")))
sketch10.addConstraint(Sketcher.Constraint("DistanceY", -1, 1, 1, 3, Q("1 in")))
sketch10.addConstraint(Sketcher.Constraint("Angle", 0, Q("45 deg")))
sketch10.addConstraint(Sketcher.Constraint("Distance", 6, Q("0.45 in")))
sketch10.addConstraint(Sketcher.Constraint("Distance", 7, Q("0.55 in")))
sketch10.addConstraint(Sketcher.Constraint("DistanceY", -1, 1, 4, 2, Q("1.01 in")))
sketch10.addConstraint(Sketcher.Constraint("DistanceX", 2, 1, 2, 2, Q("77.058494 mm")))
pad4 = body.newObject("PartDesign::Pad", "Pad003")
pad4.Profile = sketch10
pad4.Length = Q("0.325 in")
pad4.Reversed = True
doc.recompute()

fillet2 = body.newObject("PartDesign::Fillet", "Fillet001")
fillet2.Base = (pad4, edges_at(pad4, [
    (48.587, 7.938, 35.458),
    (38.783, 7.938, 25.654),
    (-38.634, 7.938, 25.654),
    (-46.717, 7.938, 17.572),
    (-56.595, 7.938, 27.45),
]))
fillet2.Radius = Q("0.25 in")

# Sketch on XZ plane
sketch11 = body.newObject("Sketcher::SketchObject", "Sketch010")
sketch11.AttachmentSupport = (doc.getObject("XZ_Plane"), [""])
sketch11.MapMode = "FlatFace"
sketch11.addGeometry(Part.LineSegment(App.Vector(-20, 11, 0), App.Vector(-25, 23, 0)), False)
sketch11.addGeometry(Part.ArcOfCircle(Part.Circle(App.Vector(-31, 21, 0), App.Vector(0, 0, 1), 6), math.radians(23), math.radians(157)), False)
sketch11.addGeometry(Part.LineSegment(App.Vector(-37, 23, 0), App.Vector(-42, 11, 0)), False)
sketch11.addGeometry(Part.LineSegment(App.Vector(-42, 11, 0), App.Vector(-20, 11, 0)), False)
sketch11.addGeometry(Part.LineSegment(App.Vector(25, 23, 0), App.Vector(20, 11, 0)), False)
sketch11.addGeometry(Part.LineSegment(App.Vector(20, 11, 0), App.Vector(42, 11, 0)), False)
sketch11.addGeometry(Part.LineSegment(App.Vector(42, 11, 0), App.Vector(37, 23, 0)), False)
sketch11.addGeometry(Part.ArcOfCircle(Part.Circle(App.Vector(31, 21, 0), App.Vector(0, 0, 1), 6), math.radians(23), math.radians(157)), False)
sketch11.addConstraint(Sketcher.Constraint("Tangent", 0, 2, 1, 1))
sketch11.addConstraint(Sketcher.Constraint("Tangent", 1, 2, 2, 1))
sketch11.addConstraint(Sketcher.Constraint("Coincident", 2, 2, 3, 1))
sketch11.addConstraint(Sketcher.Constraint("Coincident", 3, 2, 0, 1))
sketch11.addConstraint(Sketcher.Constraint("Coincident", 4, 2, 5, 1))
sketch11.addConstraint(Sketcher.Constraint("Coincident", 5, 2, 6, 1))
sketch11.addConstraint(Sketcher.Constraint("Tangent", 6, 2, 7, 1))
sketch11.addConstraint(Sketcher.Constraint("Tangent", 7, 2, 4, 1))
sketch11.addConstraint(Sketcher.Constraint("Horizontal", 3))
sketch11.addConstraint(Sketcher.Constraint("Horizontal", 5))
sketch11.addConstraint(Sketcher.Constraint("Equal", 1, 7))
sketch11.addConstraint(Sketcher.Constraint("Symmetric", 1, 3, 7, 3, -2))
sketch11.addConstraint(Sketcher.Constraint("Symmetric", 3, 2, 4, 2, -2))
sketch11.addConstraint(Sketcher.Constraint("Parallel", 2, 4))
sketch11.addConstraint(Sketcher.Constraint("Parallel", 0, 6))
sketch11.addConstraint(Sketcher.Constraint("Radius", 1, Q("0.25 in")))
sketch11.addConstraint(Sketcher.Constraint("Angle", 0, Q("112.5 deg")))
sketch11.addConstraint(Sketcher.Constraint("DistanceY", -1, 1, 2, 2, Q("0.45 in")))
sketch11.addConstraint(Sketcher.Constraint("DistanceX", 1, 3, 7, 3, Q("2.45 in")))
sketch11.addConstraint(Sketcher.Constraint("DistanceY", -1, 1, 1, 3, Q("0.815 in")))
pad5 = body.newObject("PartDesign::Pad", "Pad004")
pad5.Profile = sketch11
pad5.Length = Q("0.25 in")
doc.recompute()

fillet3 = body.newObject("PartDesign::Fillet", "Fillet002")
fillet3.Base = (pad5, edges_at(pad5, [
    (-41.828, -3.175, 11.43),
    (-20.402, -3.175, 11.43),
    (20.402, -3.175, 11.43),
    (41.828, -3.175, 11.43),
]))
fillet3.Radius = Q("0.25 in")

# Sketch on XZ plane
sketch12 = body.newObject("Sketcher::SketchObject", "Sketch011")
sketch12.AttachmentSupport = (doc.getObject("XZ_Plane"), [""])
sketch12.MapMode = "FlatFace"
sketch12.AttachmentOffset = App.Placement(App.Vector(0, 0, -0.15 * 25.4), App.Rotation())
sketch12.addGeometry(Part.Circle(App.Vector(-31.1, 20.7, 0), App.Vector(0, 0, 1), 1.1), False)
sketch12.addGeometry(Part.Circle(App.Vector(31.1, 20.7, 0), App.Vector(0, 0, 1), 1.1), False)
sketch12.addConstraint(Sketcher.Constraint("Equal", 0, 1))
sketch12.addConstraint(Sketcher.Constraint("Symmetric", 0, 3, 1, 3, -2))
sketch12.addConstraint(Sketcher.Constraint("Diameter", 0, Q("0.089 in")))
sketch12.addConstraint(Sketcher.Constraint("DistanceX", 0, 3, 1, 3, Q("2.45 in")))
sketch12.addConstraint(Sketcher.Constraint("DistanceY", -1, 1, 0, 3, Q("0.815 in")))
doc.recompute()
hole5 = body.newObject("PartDesign::Hole", "Hole004")
hole5.Profile = sketch12
hole5.ThreadType = "None"
hole5.Diameter = Q("0.089 in")
hole5.DepthType = "Dimension"
hole5.Depth = Q("0.225 in")
hole5.DrillPoint = "Angled"
hole5.DrillPointAngle = 118
hole5.HoleCutType = "Counterbore"
hole5.HoleCutDiameter = Q("0.112 in")
hole5.HoleCutDepth = Q("0.15 in")
hole5.Reversed = True

# Sketch on XZ plane
sketch13 = body.newObject("Sketcher::SketchObject", "Sketch012")
sketch13.AttachmentSupport = (doc.getObject("XZ_Plane"), [""])
sketch13.MapMode = "FlatFace"
sketch13.addGeometry(Part.Circle(App.Vector(-46, 28.6, 0), App.Vector(0, 0, 1), 3.5), False)
sketch13.addConstraint(Sketcher.Constraint("Diameter", 0, Q("0.272 in")))
sketch13.addConstraint(Sketcher.Constraint("DistanceX", 0, 3, -1, 1, Q("1.8125 in")))
sketch13.addConstraint(Sketcher.Constraint("DistanceY", -1, 1, 0, 3, Q("1.125 in")))
doc.recompute()
hole6 = body.newObject("PartDesign::Hole", "Hole005")
hole6.Profile = sketch13
hole6.ThreadType = "None"
hole6.Diameter = Q("0.272 in")
hole6.DepthType = "ThroughAll"

# Sketch on XZ plane
sketch14 = body.newObject("Sketcher::SketchObject", "Sketch013")
sketch14.AttachmentSupport = (doc.getObject("XZ_Plane"), [""])
sketch14.MapMode = "FlatFace"
sketch14.AttachmentOffset = App.Placement(App.Vector(0, 0, -0.475 * 25.4), App.Rotation())
sketch14.addGeometry(Part.LineSegment(App.Vector(39, 45, 0), App.Vector(-39, 45, 0)), False)
sketch14.addGeometry(Part.ArcOfCircle(Part.Circle(App.Vector(-39, 25, 0), App.Vector(0, 0, 1), 20), math.radians(90), math.radians(135)), False)
sketch14.addGeometry(Part.LineSegment(App.Vector(-53, 39, 0), App.Vector(-78, 14, 0)), False)
sketch14.addGeometry(Part.ArcOfCircle(Part.Circle(App.Vector(-64, 0, 0), App.Vector(0, 0, 1), 20), math.radians(135), math.radians(270)), False)
sketch14.addGeometry(Part.LineSegment(App.Vector(-64, -20, 0), App.Vector(64, -20, 0)), False)
sketch14.addGeometry(Part.ArcOfCircle(Part.Circle(App.Vector(64, 0, 0), App.Vector(0, 0, 1), 20), math.radians(-90), math.radians(45)), False)
sketch14.addGeometry(Part.LineSegment(App.Vector(78, 14, 0), App.Vector(53, 39, 0)), False)
sketch14.addGeometry(Part.ArcOfCircle(Part.Circle(App.Vector(39, 25, 0), App.Vector(0, 0, 1), 20), math.radians(45), math.radians(90)), False)
sketch14.addGeometry(Part.ArcOfCircle(Part.Circle(App.Vector(39, 25, 0), App.Vector(0, 0, 1), 16), math.radians(45), math.radians(90)), False)
sketch14.addGeometry(Part.LineSegment(App.Vector(50, 37, 0), App.Vector(75, 12, 0)), False)
sketch14.addGeometry(Part.ArcOfCircle(Part.Circle(App.Vector(63, 0, 0), App.Vector(0, 0, 1), 16), math.radians(-90), math.radians(45)), False)
sketch14.addGeometry(Part.LineSegment(App.Vector(64, -16, 0), App.Vector(-64, -16, 0)), False)
sketch14.addGeometry(Part.ArcOfCircle(Part.Circle(App.Vector(-63, 0, 0), App.Vector(0, 0, 1), 16), math.radians(135), math.radians(270)), False)
sketch14.addGeometry(Part.LineSegment(App.Vector(-75, 12, 0), App.Vector(-50, 37, 0)), False)
sketch14.addGeometry(Part.ArcOfCircle(Part.Circle(App.Vector(-39, 25, 0), App.Vector(0, 0, 1), 16), math.radians(90), math.radians(135)), False)
sketch14.addGeometry(Part.LineSegment(App.Vector(-39, 42, 0), App.Vector(39, 42, 0)), False)
sketch14.addConstraint(Sketcher.Constraint("Tangent", 0, 2, 1, 1))
sketch14.addConstraint(Sketcher.Constraint("Tangent", 1, 2, 2, 1))
sketch14.addConstraint(Sketcher.Constraint("Tangent", 2, 2, 3, 1))
sketch14.addConstraint(Sketcher.Constraint("Tangent", 3, 2, 4, 1))
sketch14.addConstraint(Sketcher.Constraint("Tangent", 4, 2, 5, 1))
sketch14.addConstraint(Sketcher.Constraint("Tangent", 5, 2, 6, 1))
sketch14.addConstraint(Sketcher.Constraint("Tangent", 6, 2, 7, 1))
sketch14.addConstraint(Sketcher.Constraint("Tangent", 7, 2, 0, 1))
sketch14.addConstraint(Sketcher.Constraint("Tangent", 8, 1, 9, 1))
sketch14.addConstraint(Sketcher.Constraint("Tangent", 9, 2, 10, 2))
sketch14.addConstraint(Sketcher.Constraint("Tangent", 10, 1, 11, 1))
sketch14.addConstraint(Sketcher.Constraint("Tangent", 11, 2, 12, 2))
sketch14.addConstraint(Sketcher.Constraint("Tangent", 12, 1, 13, 1))
sketch14.addConstraint(Sketcher.Constraint("Tangent", 13, 2, 14, 2))
sketch14.addConstraint(Sketcher.Constraint("Tangent", 14, 1, 15, 1))
sketch14.addConstraint(Sketcher.Constraint("Tangent", 15, 2, 8, 2))
sketch14.addConstraint(Sketcher.Constraint("Horizontal", 0))
sketch14.addConstraint(Sketcher.Constraint("Horizontal", 4))
sketch14.addConstraint(Sketcher.Constraint("Horizontal", 11))
sketch14.addConstraint(Sketcher.Constraint("Horizontal", 15))
sketch14.addConstraint(Sketcher.Constraint("Coincident", 8, 3, 7, 3))
sketch14.addConstraint(Sketcher.Constraint("Coincident", 10, 3, 5, 3))
sketch14.addConstraint(Sketcher.Constraint("Coincident", 12, 3, 3, 3))
sketch14.addConstraint(Sketcher.Constraint("Coincident", 14, 3, 1, 3))
sketch14.addConstraint(Sketcher.Constraint("Equal", 3, 5))
sketch14.addConstraint(Sketcher.Constraint("Equal", 1, 7))
sketch14.addConstraint(Sketcher.Constraint("Symmetric", 2, 2, 5, 2, -2))
sketch14.addConstraint(Sketcher.Constraint("Perpendicular", 2, 6))
sketch14.addConstraint(Sketcher.Constraint("Parallel", 6, 9))
sketch14.addConstraint(Sketcher.Constraint("DistanceX", 4, 1, 4, 2, Q("5 in")))
sketch14.addConstraint(Sketcher.Constraint("Radius", 1, Q("0.78 in")))
sketch14.addConstraint(Sketcher.Constraint("Radius", 8, Q("0.64 in")))
sketch14.addConstraint(Sketcher.Constraint("DistanceY", -1, 1, 1, 3, Q("1 in")))
sketch14.addConstraint(Sketcher.Constraint("Radius", 3, Q("0.787 in")))
sketch14.addConstraint(Sketcher.Constraint("DistanceY", 3, 2, -1, 1, Q("0.78 in")))
pocket1 = body.newObject("PartDesign::Pocket", "Pocket")
pocket1.Profile = sketch14
pocket1.Length = Q("0.075 in")
pocket1.Reversed = True
doc.recompute()

fillet4 = body.newObject("PartDesign::Fillet", "Fillet003")
fillet4.Base = (pocket1, edges_at(pocket1, [
    (-85.522, 8.89, -31.369),
    (85.522, 8.89, -31.369),
    (85.522, 8.89, 47.244),
    (-85.522, 8.89, 47.244),
]))
fillet4.Radius = Q("1 in")

# Sketch on XZ plane
sketch15 = body.newObject("Sketcher::SketchObject", "Sketch014")
sketch15.AttachmentSupport = (doc.getObject("XZ_Plane"), [""])
sketch15.MapMode = "FlatFace"
sketch15.AttachmentOffset = App.Placement(App.Vector(0, 0, -0.475 * 25.4), App.Rotation())
sketch15.addGeometry(Part.Circle(App.Vector(-12.7, 33.3, 0), App.Vector(0, 0, 1), 4.2), False)
sketch15.addGeometry(Part.Circle(App.Vector(12.7, 33.3, 0), App.Vector(0, 0, 1), 4.2), False)
sketch15.addConstraint(Sketcher.Constraint("Equal", 0, 1))
sketch15.addConstraint(Sketcher.Constraint("Symmetric", 0, 3, 1, 3, -2))
sketch15.addConstraint(Sketcher.Constraint("DistanceX", 0, 3, 1, 3, Q("1 in")))
sketch15.addConstraint(Sketcher.Constraint("Diameter", 0, Q("8.5 mm")))
sketch15.addConstraint(Sketcher.Constraint("DistanceY", -1, 1, 0, 3, Q("1.31 in")))
doc.recompute()
hole7 = body.newObject("PartDesign::Hole", "Hole006")
hole7.Profile = sketch15
hole7.ThreadType = "None"
hole7.Diameter = 8.5
hole7.DepthType = "ThroughAll"
hole7.Reversed = True

# Sketch on XZ plane
sketch16 = body.newObject("Sketcher::SketchObject", "Sketch015")
sketch16.AttachmentSupport = (doc.getObject("XZ_Plane"), [""])
sketch16.MapMode = "FlatFace"
sketch16.AttachmentOffset = App.Placement(App.Vector(0, 0, -0.475 * 25.4), App.Rotation())
sketch16.addGeometry(Part.Circle(App.Vector(-71.6, 33.3, 0), App.Vector(0, 0, 1), 1.9), False)
sketch16.addGeometry(Part.Circle(App.Vector(-31.8, -26.6, 0), App.Vector(0, 0, 1), 1.9), False)
sketch16.addGeometry(Part.Circle(App.Vector(71.6, 33.3, 0), App.Vector(0, 0, 1), 1.9), False)
sketch16.addGeometry(Part.Circle(App.Vector(31.8, -26.6, 0), App.Vector(0, 0, 1), 1.9), False)
sketch16.addConstraint(Sketcher.Constraint("Equal", 0, 1))
sketch16.addConstraint(Sketcher.Constraint("Equal", 1, 2))
sketch16.addConstraint(Sketcher.Constraint("Equal", 2, 3))
sketch16.addConstraint(Sketcher.Constraint("Symmetric", 0, 3, 2, 3, -2))
sketch16.addConstraint(Sketcher.Constraint("Symmetric", 1, 3, 3, 3, -2))
sketch16.addConstraint(Sketcher.Constraint("Diameter", 0, Q("0.1495 in")))
sketch16.addConstraint(Sketcher.Constraint("DistanceX", 1, 3, 3, 3, Q("2.5 in")))
sketch16.addConstraint(Sketcher.Constraint("DistanceY", -1, 1, 0, 3, Q("1.31 in")))
sketch16.addConstraint(Sketcher.Constraint("DistanceX", 0, 3, -1, 1, Q("2.817 in")))
sketch16.addConstraint(Sketcher.Constraint("DistanceY", 1, 3, -1, 1, Q("1.0475 in")))
doc.recompute()
hole8 = body.newObject("PartDesign::Hole", "Hole007")
hole8.Profile = sketch16
hole8.ThreadType = "None"
hole8.Diameter = Q("0.1495 in")
hole8.DepthType = "ThroughAll"
hole8.Reversed = True

# Sketch on XZ plane
sketch17 = body.newObject("Sketcher::SketchObject", "Sketch016")
sketch17.AttachmentSupport = (doc.getObject("XZ_Plane"), [""])
sketch17.MapMode = "FlatFace"
sketch17.AttachmentOffset = App.Placement(App.Vector(0, 0, -0.475 * 25.4), App.Rotation())
sketch17.addGeometry(Part.Circle(App.Vector(-31.8, -26.6, 0), App.Vector(0, 0, 1), 3.2), False)
sketch17.addGeometry(Part.Circle(App.Vector(-31.8, -26.6, 0), App.Vector(0, 0, 1), 1.9), False)
sketch17.addGeometry(Part.Circle(App.Vector(-71.6, 33.3, 0), App.Vector(0, 0, 1), 3.2), False)
sketch17.addGeometry(Part.Circle(App.Vector(-71.6, 33.3, 0), App.Vector(0, 0, 1), 1.9), False)
sketch17.addGeometry(Part.Circle(App.Vector(71.6, 33.3, 0), App.Vector(0, 0, 1), 3.2), False)
sketch17.addGeometry(Part.Circle(App.Vector(71.6, 33.3, 0), App.Vector(0, 0, 1), 1.9), False)
sketch17.addGeometry(Part.Circle(App.Vector(31.8, -26.6, 0), App.Vector(0, 0, 1), 3.2), False)
sketch17.addGeometry(Part.Circle(App.Vector(31.8, -26.6, 0), App.Vector(0, 0, 1), 1.9), False)
sketch17.addConstraint(Sketcher.Constraint("Coincident", 1, 3, 0, 3))
sketch17.addConstraint(Sketcher.Constraint("Coincident", 3, 3, 2, 3))
sketch17.addConstraint(Sketcher.Constraint("Coincident", 5, 3, 4, 3))
sketch17.addConstraint(Sketcher.Constraint("Coincident", 7, 3, 6, 3))
sketch17.addConstraint(Sketcher.Constraint("Equal", 0, 2))
sketch17.addConstraint(Sketcher.Constraint("Equal", 1, 3))
sketch17.addConstraint(Sketcher.Constraint("Equal", 2, 4))
sketch17.addConstraint(Sketcher.Constraint("Equal", 3, 5))
sketch17.addConstraint(Sketcher.Constraint("Equal", 4, 6))
sketch17.addConstraint(Sketcher.Constraint("Equal", 5, 7))
sketch17.addConstraint(Sketcher.Constraint("Symmetric", 2, 3, 4, 3, -2))
sketch17.addConstraint(Sketcher.Constraint("Symmetric", 0, 3, 6, 3, -2))
sketch17.addConstraint(Sketcher.Constraint("Diameter", 0, Q("0.255 in")))
sketch17.addConstraint(Sketcher.Constraint("Diameter", 1, Q("0.1495 in")))
sketch17.addConstraint(Sketcher.Constraint("DistanceX", 0, 3, 6, 3, Q("2.5 in")))
sketch17.addConstraint(Sketcher.Constraint("DistanceY", -1, 1, 2, 3, Q("1.31 in")))
sketch17.addConstraint(Sketcher.Constraint("DistanceX", 2, 3, -1, 1, Q("2.817 in")))
sketch17.addConstraint(Sketcher.Constraint("DistanceY", 0, 3, -1, 1, Q("1.0475 in")))
pad6 = body.newObject("PartDesign::Pad", "Pad005")
pad6.Profile = sketch17
pad6.Length = Q("0.025 in")
pad6.Reversed = True

# Sketch on XZ plane
sketch18 = body.newObject("Sketcher::SketchObject", "Sketch017")
sketch18.AttachmentSupport = (doc.getObject("XZ_Plane"), [""])
sketch18.MapMode = "FlatFace"
sketch18.addGeometry(Part.Circle(App.Vector(-13, 33, 0), App.Vector(0, 0, 1), 5), False)
sketch18.addGeometry(Part.Circle(App.Vector(13, 33, 0), App.Vector(0, 0, 1), 5), False)
sketch18.addConstraint(Sketcher.Constraint("Equal", 0, 1))
sketch18.addConstraint(Sketcher.Constraint("Symmetric", 0, 3, 1, 3, -2))
sketch18.addConstraint(Sketcher.Constraint("Diameter", 0, Q("0.4 in")))
sketch18.addConstraint(Sketcher.Constraint("DistanceX", 0, 3, 1, 3, Q("1 in")))
sketch18.addConstraint(Sketcher.Constraint("DistanceY", -1, 1, 0, 3, Q("1.31 in")))
pocket2 = body.newObject("PartDesign::Pocket", "Pocket001")
pocket2.Profile = sketch18
pocket2.Length = 5

doc.recompute()
